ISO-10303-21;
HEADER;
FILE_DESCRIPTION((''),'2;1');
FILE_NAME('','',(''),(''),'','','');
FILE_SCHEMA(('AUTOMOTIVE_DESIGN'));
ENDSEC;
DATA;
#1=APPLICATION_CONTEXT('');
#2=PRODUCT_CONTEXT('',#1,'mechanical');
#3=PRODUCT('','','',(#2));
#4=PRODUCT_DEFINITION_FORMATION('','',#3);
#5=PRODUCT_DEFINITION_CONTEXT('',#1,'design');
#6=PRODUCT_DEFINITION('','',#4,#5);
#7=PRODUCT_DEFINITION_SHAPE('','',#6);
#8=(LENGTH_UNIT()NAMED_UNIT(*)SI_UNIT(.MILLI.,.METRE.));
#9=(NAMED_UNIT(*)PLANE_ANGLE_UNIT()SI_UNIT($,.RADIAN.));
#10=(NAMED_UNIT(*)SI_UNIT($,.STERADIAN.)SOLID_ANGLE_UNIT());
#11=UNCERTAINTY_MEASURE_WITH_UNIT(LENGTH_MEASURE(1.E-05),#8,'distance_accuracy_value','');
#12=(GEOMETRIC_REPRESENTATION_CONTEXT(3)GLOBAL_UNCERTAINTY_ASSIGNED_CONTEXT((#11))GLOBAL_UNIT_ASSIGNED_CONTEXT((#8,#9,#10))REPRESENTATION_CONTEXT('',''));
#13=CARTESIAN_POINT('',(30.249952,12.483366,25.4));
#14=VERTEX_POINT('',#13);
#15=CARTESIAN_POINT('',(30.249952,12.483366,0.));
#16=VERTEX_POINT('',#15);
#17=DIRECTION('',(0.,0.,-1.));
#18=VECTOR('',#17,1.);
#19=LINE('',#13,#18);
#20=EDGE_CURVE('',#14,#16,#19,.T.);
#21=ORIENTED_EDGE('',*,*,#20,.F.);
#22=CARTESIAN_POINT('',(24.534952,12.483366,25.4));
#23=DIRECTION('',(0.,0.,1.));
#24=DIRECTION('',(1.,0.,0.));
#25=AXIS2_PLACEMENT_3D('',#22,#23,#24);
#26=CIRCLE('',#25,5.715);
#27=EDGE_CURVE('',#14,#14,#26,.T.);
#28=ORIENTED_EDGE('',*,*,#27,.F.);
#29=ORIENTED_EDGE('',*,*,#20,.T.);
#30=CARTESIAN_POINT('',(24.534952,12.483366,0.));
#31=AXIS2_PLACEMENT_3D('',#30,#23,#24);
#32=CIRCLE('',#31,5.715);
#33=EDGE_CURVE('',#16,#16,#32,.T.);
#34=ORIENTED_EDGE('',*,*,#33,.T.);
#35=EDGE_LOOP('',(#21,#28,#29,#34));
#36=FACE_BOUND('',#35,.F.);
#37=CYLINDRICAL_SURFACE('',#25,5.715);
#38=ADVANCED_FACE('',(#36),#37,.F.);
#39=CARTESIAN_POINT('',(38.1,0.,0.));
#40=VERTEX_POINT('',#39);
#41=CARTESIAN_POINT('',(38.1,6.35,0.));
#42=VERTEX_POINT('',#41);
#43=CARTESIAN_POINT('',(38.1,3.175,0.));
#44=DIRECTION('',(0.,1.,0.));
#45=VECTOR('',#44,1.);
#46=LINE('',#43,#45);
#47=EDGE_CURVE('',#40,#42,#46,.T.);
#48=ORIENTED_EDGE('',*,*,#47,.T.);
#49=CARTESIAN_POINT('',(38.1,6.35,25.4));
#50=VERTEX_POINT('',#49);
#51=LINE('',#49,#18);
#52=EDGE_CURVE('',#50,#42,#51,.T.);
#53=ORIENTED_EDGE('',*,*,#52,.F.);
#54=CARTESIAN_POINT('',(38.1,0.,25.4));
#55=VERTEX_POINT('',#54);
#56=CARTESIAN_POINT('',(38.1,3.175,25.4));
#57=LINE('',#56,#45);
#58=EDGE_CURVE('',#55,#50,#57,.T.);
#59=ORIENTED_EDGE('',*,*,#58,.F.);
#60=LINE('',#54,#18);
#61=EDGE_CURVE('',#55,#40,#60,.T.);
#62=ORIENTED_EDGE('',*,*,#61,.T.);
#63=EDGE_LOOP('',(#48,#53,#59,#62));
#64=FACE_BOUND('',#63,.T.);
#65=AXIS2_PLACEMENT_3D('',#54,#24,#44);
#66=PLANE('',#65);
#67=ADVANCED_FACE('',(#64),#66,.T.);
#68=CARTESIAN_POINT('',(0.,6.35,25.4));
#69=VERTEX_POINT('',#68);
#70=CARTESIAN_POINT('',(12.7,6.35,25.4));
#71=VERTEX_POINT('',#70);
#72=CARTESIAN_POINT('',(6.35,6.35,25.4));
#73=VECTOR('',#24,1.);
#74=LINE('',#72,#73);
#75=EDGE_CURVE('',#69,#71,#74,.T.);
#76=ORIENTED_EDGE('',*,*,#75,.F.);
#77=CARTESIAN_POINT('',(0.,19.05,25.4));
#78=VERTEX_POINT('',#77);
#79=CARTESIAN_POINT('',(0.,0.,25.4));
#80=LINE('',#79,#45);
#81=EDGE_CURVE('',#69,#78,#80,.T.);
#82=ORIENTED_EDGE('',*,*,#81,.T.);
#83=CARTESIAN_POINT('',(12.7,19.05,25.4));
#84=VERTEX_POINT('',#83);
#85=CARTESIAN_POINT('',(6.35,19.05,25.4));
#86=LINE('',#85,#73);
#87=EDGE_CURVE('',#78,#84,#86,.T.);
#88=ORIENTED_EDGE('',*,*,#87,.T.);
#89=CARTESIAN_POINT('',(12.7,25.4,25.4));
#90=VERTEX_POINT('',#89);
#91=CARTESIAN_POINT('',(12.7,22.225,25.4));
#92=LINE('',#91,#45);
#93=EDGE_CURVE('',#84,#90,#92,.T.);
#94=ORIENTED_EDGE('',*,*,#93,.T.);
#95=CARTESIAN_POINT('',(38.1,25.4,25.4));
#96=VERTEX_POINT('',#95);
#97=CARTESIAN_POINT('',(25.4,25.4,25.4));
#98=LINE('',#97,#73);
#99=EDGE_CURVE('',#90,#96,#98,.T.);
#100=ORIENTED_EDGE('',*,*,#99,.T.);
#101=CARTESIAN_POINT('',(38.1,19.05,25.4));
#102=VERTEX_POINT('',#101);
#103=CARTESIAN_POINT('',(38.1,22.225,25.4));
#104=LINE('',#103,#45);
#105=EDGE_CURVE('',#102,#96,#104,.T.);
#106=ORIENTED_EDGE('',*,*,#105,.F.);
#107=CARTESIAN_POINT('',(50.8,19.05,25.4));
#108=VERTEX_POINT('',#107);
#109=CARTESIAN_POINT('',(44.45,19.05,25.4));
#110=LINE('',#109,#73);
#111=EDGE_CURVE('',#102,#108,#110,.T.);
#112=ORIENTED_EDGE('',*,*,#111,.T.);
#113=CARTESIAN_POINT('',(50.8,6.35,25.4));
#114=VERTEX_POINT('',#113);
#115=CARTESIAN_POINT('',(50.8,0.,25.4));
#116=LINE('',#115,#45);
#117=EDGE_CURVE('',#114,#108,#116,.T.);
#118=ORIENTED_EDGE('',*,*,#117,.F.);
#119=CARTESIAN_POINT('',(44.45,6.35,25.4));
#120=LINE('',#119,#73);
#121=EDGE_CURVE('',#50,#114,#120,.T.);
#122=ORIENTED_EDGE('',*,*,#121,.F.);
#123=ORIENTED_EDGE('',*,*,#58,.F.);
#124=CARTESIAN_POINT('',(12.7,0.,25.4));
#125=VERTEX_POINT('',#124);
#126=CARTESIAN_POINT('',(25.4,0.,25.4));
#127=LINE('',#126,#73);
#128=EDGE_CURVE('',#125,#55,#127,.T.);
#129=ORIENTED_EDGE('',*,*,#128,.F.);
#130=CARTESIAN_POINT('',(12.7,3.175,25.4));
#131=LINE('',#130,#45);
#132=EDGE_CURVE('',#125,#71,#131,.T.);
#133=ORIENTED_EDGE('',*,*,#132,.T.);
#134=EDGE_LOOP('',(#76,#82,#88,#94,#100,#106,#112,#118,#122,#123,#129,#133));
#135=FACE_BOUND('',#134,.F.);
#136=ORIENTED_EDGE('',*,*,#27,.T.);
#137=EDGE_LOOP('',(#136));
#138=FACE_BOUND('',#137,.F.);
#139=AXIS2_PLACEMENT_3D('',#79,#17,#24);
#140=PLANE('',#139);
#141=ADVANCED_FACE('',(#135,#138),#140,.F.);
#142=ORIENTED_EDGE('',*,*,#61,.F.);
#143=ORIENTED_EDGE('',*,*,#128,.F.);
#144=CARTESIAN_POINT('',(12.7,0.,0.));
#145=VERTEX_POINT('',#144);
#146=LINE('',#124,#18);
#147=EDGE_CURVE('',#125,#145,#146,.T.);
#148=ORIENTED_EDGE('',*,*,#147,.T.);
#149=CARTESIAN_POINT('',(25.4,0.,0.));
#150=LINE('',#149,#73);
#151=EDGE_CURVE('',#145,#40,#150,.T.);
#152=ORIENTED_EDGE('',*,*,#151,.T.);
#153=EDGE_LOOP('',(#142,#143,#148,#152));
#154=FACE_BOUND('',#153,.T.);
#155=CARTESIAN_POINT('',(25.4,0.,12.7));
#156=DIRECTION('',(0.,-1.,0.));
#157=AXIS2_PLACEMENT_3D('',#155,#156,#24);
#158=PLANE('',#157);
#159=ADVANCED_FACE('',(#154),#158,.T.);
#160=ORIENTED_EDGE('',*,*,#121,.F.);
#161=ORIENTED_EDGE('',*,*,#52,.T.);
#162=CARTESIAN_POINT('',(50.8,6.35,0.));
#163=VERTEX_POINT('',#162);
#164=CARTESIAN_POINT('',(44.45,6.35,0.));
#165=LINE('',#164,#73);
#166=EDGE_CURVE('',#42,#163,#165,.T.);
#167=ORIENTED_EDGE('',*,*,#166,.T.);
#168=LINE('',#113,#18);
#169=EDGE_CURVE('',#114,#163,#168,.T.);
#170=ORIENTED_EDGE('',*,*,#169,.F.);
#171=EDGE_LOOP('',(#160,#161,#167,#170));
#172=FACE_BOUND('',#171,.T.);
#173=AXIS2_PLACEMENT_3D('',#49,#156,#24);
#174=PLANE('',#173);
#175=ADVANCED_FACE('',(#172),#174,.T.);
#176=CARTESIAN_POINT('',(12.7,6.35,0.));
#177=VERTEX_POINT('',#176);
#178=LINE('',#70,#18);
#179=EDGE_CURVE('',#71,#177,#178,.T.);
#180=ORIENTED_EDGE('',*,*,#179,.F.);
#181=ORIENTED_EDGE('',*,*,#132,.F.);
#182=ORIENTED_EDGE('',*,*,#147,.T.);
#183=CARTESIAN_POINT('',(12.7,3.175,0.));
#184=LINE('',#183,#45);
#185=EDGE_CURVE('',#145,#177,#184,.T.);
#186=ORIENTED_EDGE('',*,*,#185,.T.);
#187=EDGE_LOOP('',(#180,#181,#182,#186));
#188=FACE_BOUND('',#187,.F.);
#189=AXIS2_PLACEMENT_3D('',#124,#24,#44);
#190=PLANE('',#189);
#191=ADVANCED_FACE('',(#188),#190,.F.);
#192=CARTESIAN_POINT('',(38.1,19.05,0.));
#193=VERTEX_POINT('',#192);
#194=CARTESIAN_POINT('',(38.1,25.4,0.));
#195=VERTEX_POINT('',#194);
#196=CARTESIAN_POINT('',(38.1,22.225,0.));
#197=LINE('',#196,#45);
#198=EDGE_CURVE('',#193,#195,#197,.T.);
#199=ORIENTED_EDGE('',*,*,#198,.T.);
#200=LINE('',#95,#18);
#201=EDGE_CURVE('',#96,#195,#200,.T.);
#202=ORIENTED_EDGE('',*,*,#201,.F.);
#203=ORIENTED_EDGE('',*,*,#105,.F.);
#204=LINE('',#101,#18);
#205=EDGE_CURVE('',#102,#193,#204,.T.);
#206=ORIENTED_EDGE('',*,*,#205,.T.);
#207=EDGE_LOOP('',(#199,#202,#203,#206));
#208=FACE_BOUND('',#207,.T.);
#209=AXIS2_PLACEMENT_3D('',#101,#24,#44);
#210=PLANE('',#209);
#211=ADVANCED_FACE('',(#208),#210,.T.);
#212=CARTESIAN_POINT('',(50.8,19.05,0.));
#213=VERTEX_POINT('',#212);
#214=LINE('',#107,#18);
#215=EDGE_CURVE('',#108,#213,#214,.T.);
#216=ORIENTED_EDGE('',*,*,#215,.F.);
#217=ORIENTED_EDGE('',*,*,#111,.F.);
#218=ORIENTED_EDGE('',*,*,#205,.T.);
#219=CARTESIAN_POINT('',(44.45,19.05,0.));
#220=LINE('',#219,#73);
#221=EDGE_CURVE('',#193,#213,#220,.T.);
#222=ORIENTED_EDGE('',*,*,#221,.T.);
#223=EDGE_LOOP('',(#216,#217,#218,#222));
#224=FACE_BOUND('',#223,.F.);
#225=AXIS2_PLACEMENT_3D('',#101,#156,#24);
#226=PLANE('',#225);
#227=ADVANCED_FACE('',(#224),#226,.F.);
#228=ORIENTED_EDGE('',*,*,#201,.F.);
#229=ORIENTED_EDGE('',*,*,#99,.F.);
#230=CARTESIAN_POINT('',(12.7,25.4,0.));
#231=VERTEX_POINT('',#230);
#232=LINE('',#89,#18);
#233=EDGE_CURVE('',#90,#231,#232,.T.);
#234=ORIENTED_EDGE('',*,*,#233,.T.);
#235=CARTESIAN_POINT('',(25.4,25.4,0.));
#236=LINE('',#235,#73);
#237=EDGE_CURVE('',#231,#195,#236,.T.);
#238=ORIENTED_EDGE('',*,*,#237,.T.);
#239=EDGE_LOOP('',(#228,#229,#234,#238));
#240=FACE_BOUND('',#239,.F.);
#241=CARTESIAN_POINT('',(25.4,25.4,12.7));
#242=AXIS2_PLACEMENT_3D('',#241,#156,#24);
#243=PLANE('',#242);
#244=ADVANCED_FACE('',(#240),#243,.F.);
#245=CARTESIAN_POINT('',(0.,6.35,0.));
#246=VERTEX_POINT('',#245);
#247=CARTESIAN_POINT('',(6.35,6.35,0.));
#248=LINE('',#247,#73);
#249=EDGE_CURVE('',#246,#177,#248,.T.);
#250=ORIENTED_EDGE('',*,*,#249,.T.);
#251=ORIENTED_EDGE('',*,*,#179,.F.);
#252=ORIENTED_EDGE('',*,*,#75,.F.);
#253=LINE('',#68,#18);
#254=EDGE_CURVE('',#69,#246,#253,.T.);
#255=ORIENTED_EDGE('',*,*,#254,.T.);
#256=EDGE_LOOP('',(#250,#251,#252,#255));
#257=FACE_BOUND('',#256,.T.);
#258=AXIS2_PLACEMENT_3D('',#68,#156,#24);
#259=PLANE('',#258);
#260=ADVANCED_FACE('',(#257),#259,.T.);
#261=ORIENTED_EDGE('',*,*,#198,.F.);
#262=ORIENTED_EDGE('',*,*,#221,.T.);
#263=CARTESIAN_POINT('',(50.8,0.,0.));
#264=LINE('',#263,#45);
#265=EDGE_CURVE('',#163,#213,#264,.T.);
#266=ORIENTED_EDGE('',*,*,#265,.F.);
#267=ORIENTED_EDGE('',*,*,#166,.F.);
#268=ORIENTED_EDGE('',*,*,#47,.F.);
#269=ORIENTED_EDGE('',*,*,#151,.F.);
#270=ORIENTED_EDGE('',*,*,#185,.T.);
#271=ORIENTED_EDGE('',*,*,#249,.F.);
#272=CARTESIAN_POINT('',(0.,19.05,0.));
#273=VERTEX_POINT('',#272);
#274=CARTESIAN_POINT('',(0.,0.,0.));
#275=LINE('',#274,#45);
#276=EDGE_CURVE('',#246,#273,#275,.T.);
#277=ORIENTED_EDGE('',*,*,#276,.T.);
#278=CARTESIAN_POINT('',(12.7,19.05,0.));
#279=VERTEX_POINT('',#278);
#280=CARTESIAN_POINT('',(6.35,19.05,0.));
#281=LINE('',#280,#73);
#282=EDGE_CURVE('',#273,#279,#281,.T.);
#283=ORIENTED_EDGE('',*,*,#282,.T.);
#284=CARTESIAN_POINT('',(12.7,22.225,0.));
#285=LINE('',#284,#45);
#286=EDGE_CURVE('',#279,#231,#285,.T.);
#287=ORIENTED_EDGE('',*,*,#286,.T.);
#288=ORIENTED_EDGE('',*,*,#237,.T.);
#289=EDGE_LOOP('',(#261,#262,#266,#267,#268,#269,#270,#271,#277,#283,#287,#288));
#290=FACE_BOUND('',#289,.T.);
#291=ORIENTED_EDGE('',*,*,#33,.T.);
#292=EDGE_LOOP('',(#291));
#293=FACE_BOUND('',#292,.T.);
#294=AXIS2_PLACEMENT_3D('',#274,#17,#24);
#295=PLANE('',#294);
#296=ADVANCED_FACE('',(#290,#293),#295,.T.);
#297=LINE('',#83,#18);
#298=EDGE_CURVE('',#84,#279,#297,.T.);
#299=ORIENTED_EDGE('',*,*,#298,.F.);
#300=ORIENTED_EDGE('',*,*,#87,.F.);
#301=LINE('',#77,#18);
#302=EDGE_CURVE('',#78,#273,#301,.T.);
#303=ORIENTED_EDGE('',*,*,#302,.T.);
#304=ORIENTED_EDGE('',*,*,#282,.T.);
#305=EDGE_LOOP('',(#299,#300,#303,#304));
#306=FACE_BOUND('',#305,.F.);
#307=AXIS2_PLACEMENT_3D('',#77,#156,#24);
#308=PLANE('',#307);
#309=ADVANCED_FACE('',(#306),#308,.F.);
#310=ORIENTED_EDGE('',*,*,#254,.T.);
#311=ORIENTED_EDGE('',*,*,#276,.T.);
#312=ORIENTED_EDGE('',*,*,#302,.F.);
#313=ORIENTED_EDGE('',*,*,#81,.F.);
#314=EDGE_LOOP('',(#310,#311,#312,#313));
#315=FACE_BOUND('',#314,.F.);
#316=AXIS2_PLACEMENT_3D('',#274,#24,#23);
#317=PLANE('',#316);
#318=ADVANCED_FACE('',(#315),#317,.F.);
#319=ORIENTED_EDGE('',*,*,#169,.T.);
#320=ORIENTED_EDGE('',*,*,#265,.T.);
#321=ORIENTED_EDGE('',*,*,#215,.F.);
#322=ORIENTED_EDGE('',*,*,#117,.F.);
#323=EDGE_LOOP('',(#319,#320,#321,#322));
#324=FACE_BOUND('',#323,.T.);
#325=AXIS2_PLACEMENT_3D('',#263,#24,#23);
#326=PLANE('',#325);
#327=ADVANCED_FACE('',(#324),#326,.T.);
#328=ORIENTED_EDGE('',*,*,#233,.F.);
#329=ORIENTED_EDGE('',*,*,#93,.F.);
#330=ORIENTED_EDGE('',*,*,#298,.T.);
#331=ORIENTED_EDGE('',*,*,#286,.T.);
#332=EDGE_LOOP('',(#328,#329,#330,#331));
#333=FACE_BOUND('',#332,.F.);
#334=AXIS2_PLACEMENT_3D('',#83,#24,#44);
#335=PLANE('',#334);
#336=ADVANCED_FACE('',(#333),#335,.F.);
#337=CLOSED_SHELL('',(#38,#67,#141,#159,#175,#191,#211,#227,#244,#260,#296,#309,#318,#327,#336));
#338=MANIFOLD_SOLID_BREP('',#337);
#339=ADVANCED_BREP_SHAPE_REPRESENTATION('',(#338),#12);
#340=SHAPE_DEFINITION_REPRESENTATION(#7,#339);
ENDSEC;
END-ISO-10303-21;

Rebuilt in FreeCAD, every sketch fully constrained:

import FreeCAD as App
import Part
import Sketcher

V = App.Vector
Q = App.Units.Quantity

doc = App.newDocument("Part")
body = doc.addObject("PartDesign::Body", "Body")

# Sketch on XZ plane
sketch1 = doc.addObject("Sketcher::SketchObject", "Sketch")
body.addObject(sketch1)
sketch1.AttachmentSupport = (doc.XZ_Plane, [""])
sketch1.MapMode = "FlatFace"
sketch1.addGeometry([
    Part.LineSegment(V(0, 25, 0), V(0, 0, 0)),
    Part.LineSegment(V(0, 0, 0), V(51, 0, 0)),
    Part.LineSegment(V(51, 0, 0), V(51, 25, 0)),
    Part.LineSegment(V(51, 25, 0), V(0, 25, 0)),
], False)
sketch1.addConstraint([
    Sketcher.Constraint("Coincident", 0, 2, 1, 1),
    Sketcher.Constraint("Coincident", 1, 2, 2, 1),
    Sketcher.Constraint("Coincident", 2, 2, 3, 1),
    Sketcher.Constraint("Coincident", 3, 2, 0, 1),
    Sketcher.Constraint("Vertical", 0),
    Sketcher.Constraint("Horizontal", 1),
    Sketcher.Constraint("Vertical", 2),
    Sketcher.Constraint("Horizontal", 3),
    Sketcher.Constraint("Coincident", 0, 2, -1, 1),
    Sketcher.Constraint("DistanceX", 1, 1, 1, 2, Q("2 in")),
    Sketcher.Constraint("DistanceY", 0, 2, 0, 1, Q("1 in")),
])
pad1 = doc.addObject("PartDesign::Pad", "Pad")
body.addObject(pad1)
pad1.Profile = sketch1
pad1.Length = Q("1 in")
pad1.Reversed = True

# Sketch on XY plane
sketch2 = doc.addObject("Sketcher::SketchObject", "Sketch001")
body.addObject(sketch2)
sketch2.AttachmentSupport = (doc.XY_Plane, [""])
sketch2.MapMode = "FlatFace"
sketch2.AttachmentOffset = App.Placement(V(0, 0, 1 * 25.4), App.Rotation())
sketch2.addGeometry([
    Part.Circle(V(25, 12, 0), V(0, 0, 1), 6),  # 0
    Part.LineSegment(V(0, 25, 0), V(0, 19, 0)),  # 1
    Part.LineSegment(V(0, 19, 0), V(13, 19, 0)),  # 2
    Part.LineSegment(V(13, 19, 0), V(13, 25, 0)),  # 3
    Part.LineSegment(V(13, 25, 0), V(0, 25, 0)),  # 4
    Part.LineSegment(V(38, 25, 0), V(38, 19, 0)),  # 5
    Part.LineSegment(V(38, 19, 0), V(51, 19, 0)),  # 6
    Part.LineSegment(V(51, 19, 0), V(51, 25, 0)),  # 7
    Part.LineSegment(V(51, 25, 0), V(38, 25, 0)),  # 8
    Part.LineSegment(V(0, 6, 0), V(0, 0, 0)),  # 9
    Part.LineSegment(V(0, 0, 0), V(13, 0, 0)),  # 10
    Part.LineSegment(V(13, 0, 0), V(13, 6, 0)),  # 11
    Part.LineSegment(V(13, 6, 0), V(0, 6, 0)),  # 12
    Part.LineSegment(V(38, 6, 0), V(38, 0, 0)),  # 13
    Part.LineSegment(V(38, 0, 0), V(51, 0, 0)),  # 14
    Part.LineSegment(V(51, 0, 0), V(51, 6, 0)),  # 15
    Part.LineSegment(V(51, 6, 0), V(38, 6, 0)),  # 16
], False)
sketch2.addConstraint([
    Sketcher.Constraint("Coincident", 1, 2, 2, 1),
    Sketcher.Constraint("Coincident", 2, 2, 3, 1),
    Sketcher.Constraint("Coincident", 3, 2, 4, 1),
    Sketcher.Constraint("Coincident", 4, 2, 1, 1),
    Sketcher.Constraint("Coincident", 5, 2, 6, 1),
    Sketcher.Constraint("Coincident", 6, 2, 7, 1),
    Sketcher.Constraint("Coincident", 7, 2, 8, 1),
    Sketcher.Constraint("Coincident", 8, 2, 5, 1),
    Sketcher.Constraint("Coincident", 9, 2, 10, 1),
    Sketcher.Constraint("Coincident", 10, 2, 11, 1),
    Sketcher.Constraint("Coincident", 11, 2, 12, 1),
    Sketcher.Constraint("Coincident", 12, 2, 9, 1),
    Sketcher.Constraint("Coincident", 13, 2, 14, 1),
    Sketcher.Constraint("Coincident", 14, 2, 15, 1),
    Sketcher.Constraint("Coincident", 15, 2, 16, 1),
    Sketcher.Constraint("Coincident", 16, 2, 13, 1),
    Sketcher.Constraint("Vertical", 1),
    Sketcher.Constraint("Horizontal", 2),
    Sketcher.Constraint("Vertical", 3),
    Sketcher.Constraint("Horizontal", 4),
    Sketcher.Constraint("Vertical", 5),
    Sketcher.Constraint("Horizontal", 6),
    Sketcher.Constraint("Vertical", 7),
    Sketcher.Constraint("Horizontal", 8),
    Sketcher.Constraint("Vertical", 9),
    Sketcher.Constraint("Horizontal", 10),
    Sketcher.Constraint("Vertical", 11),
    Sketcher.Constraint("Horizontal", 12),
    Sketcher.Constraint("Vertical", 13),
    Sketcher.Constraint("Horizontal", 14),
    Sketcher.Constraint("Vertical", 15),
    Sketcher.Constraint("Horizontal", 16),
    Sketcher.Constraint("Coincident", 9, 2, -1, 1),
    Sketcher.Constraint("PointOnObject", 1, 2, -2),
    Sketcher.Constraint("PointOnObject", 13, 2, -1),
    Sketcher.Constraint("Horizontal", 2, 2, 5, 2),
    Sketcher.Constraint("Horizontal", 4, 2, 7, 2),
    Sketcher.Constraint("Horizontal", 12, 2, 15, 2),
    Sketcher.Constraint("Vertical", 3, 2, 10, 2),
    Sketcher.Constraint("Vertical", 8, 2, 13, 2),
    Sketcher.Constraint("Vertical", 7, 2, 14, 2),
    Sketcher.Constraint("Equal", 4, 6),
    Sketcher.Constraint("Equal", 7, 9),
    Sketcher.Constraint("Diameter", 0, Q("0.45 in")),
    Sketcher.Constraint("DistanceX", 2, 1, 2, 2, Q("0.5 in")),
    Sketcher.Constraint("DistanceY", -1, 1, 3, 2, Q("1 in")),
    Sketcher.Constraint("DistanceX", -1, 1, 6, 2, Q("2 in")),
    Sketcher.Constraint("DistanceY", 1, 2, 1, 1, Q("0.25 in")),
    Sketcher.Constraint("DistanceX", 0, 3, 5, 2, 13.565048),
    Sketcher.Constraint("DistanceY", -1, 1, 0, 3, 12.483366),
])
pocket1 = doc.addObject("PartDesign::Pocket", "Pocket")
body.addObject(pocket1)
pocket1.Profile = sketch2
pocket1.Length = Q("1 in")

doc.recompute()
